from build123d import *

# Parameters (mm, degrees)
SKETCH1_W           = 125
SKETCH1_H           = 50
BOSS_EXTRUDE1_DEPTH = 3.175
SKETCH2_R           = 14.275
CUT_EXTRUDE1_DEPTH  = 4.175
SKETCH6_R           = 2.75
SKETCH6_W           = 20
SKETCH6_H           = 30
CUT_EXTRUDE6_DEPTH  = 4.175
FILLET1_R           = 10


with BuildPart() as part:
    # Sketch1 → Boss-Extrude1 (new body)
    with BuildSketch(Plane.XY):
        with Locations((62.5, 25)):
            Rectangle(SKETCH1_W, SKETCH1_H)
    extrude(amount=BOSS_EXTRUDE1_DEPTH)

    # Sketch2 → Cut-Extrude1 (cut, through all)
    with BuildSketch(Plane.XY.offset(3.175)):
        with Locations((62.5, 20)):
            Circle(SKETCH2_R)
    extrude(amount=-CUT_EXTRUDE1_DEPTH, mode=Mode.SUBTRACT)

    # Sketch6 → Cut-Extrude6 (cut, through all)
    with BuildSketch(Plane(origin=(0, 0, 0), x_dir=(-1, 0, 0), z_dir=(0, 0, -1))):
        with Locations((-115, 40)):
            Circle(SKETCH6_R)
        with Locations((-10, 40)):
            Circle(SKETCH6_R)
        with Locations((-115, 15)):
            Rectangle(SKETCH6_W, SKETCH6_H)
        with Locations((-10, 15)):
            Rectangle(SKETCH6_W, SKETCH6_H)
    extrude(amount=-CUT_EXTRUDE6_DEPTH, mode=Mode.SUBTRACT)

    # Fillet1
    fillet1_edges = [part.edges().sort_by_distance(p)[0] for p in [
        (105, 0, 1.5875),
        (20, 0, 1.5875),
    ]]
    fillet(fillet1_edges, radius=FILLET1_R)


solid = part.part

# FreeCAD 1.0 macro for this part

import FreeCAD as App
import Part
import Sketcher
from FreeCAD import Vector


def edges_at(feature, points):
    """Names of the edges that pass closest to the given points."""
    edges = feature.Shape.Edges
    near = lambda p: min(range(len(edges)), key=lambda i: edges[i].distToShape(Part.Vertex(*p))[0])
    return sorted({f"Edge{near(p) + 1}" for p in points})

doc = App.newDocument("Part")
params = doc.addObject("Spreadsheet::Sheet", "Params")
for row, (alias, value) in enumerate([
    ("sketch1_width", "125 mm"),
    ("sketch1_height", "50 mm"),
    ("pad1_length", "3.175 mm"),
    ("sketch2_diameter", "28.55 mm"),
    ("sketch3_diameter", "5.5 mm"),
    ("sketch3_width", "20 mm"),
    ("sketch3_height", "30 mm"),
    ("fillet_radius", "10 mm"),
], start=1):
    params.set(f"A{row}", alias)
    params.set(f"B{row}", "=" + value)
    params.setAlias(f"B{row}", alias)

body = doc.addObject("PartDesign::Body", "Body")

sketch1 = body.newObject("Sketcher::SketchObject", "Sketch")
sketch1.AttachmentSupport = (doc.getObject("XY_Plane"), [""])
sketch1.MapMode = "FlatFace"
sketch1.addGeometry(Part.LineSegment(Vector(0, 50, 0), Vector(0, 0, 0)), False)
sketch1.addGeometry(Part.LineSegment(Vector(0, 0, 0), Vector(125, 0, 0)), False)
sketch1.addGeometry(Part.LineSegment(Vector(125, 0, 0), Vector(125, 50, 0)), False)
sketch1.addGeometry(Part.LineSegment(Vector(125, 50, 0), Vector(0, 50, 0)), False)
sketch1.addConstraint(Sketcher.Constraint("Coincident", 0, 2, 1, 1))
sketch1.addConstraint(Sketcher.Constraint("Coincident", 1, 2, 2, 1))
sketch1.addConstraint(Sketcher.Constraint("Coincident", 2, 2, 3, 1))
sketch1.addConstraint(Sketcher.Constraint("Coincident", 3, 2, 0, 1))
sketch1.addConstraint(Sketcher.Constraint("Vertical", 0))
sketch1.addConstraint(Sketcher.Constraint("Horizontal", 1))
sketch1.addConstraint(Sketcher.Constraint("Vertical", 2))
sketch1.addConstraint(Sketcher.Constraint("Horizontal", 3))
sketch1.addConstraint(Sketcher.Constraint("Coincident", 0, 2, -1, 1))
sketch1.addConstraint(Sketcher.Constraint("DistanceX", 1, 1, 1, 2, 125.0))
sketch1.addConstraint(Sketcher.Constraint("DistanceY", 0, 2, 0, 1, 50.0))
sketch1.setExpression("Constraints[9]", "Params.sketch1_width")
sketch1.setExpression("Constraints[10]", "Params.sketch1_height")
pad1 = body.newObject("PartDesign::Pad", "Pad")
pad1.Profile = sketch1
pad1.setExpression("Length", "Params.pad1_length")

sketch2 = body.newObject("Sketcher::SketchObject", "Sketch001")
sketch2.AttachmentSupport = (doc.getObject("XY_Plane"), [""])
sketch2.MapMode = "FlatFace"
sketch2.AttachmentOffset = App.Placement(Vector(0, 0, 3.175), App.Rotation())
sketch2.addGeometry(Part.Circle(Vector(62, 20, 0), Vector(0, 0, 1), 14), False)
sketch2.addConstraint(Sketcher.Constraint("Diameter", 0, 28.55))
sketch2.addConstraint(Sketcher.Constraint("DistanceY", -1, 1, 0, 3, 20.0))
sketch2.addConstraint(Sketcher.Constraint("DistanceX", -1, 1, 0, 3, 62.5))
sketch2.setExpression("Constraints[0]", "Params.sketch2_diameter")
pocket1 = body.newObject("PartDesign::Pocket", "Pocket")
pocket1.Profile = sketch2
pocket1.Type = "ThroughAll"

sketch3 = body.newObject("Sketcher::SketchObject", "Sketch002")
sketch3.AttachmentSupport = (doc.getObject("XY_Plane"), [""])
sketch3.MapMode = "FlatFace"
sketch3.addGeometry(Part.Circle(Vector(115, 40, 0), Vector(0, 0, 1), 2.8), False)
sketch3.addGeometry(Part.Circle(Vector(10, 40, 0), Vector(0, 0, 1), 2.8), False)
sketch3.addGeometry(Part.LineSegment(Vector(125, 30, 0), Vector(125, 0, 0)), False)
sketch3.addGeometry(Part.LineSegment(Vector(125, 0, 0), Vector(105, 0, 0)), False)
sketch3.addGeometry(Part.LineSegment(Vector(105, 0, 0), Vector(105, 30, 0)), False)
sketch3.addGeometry(Part.LineSegment(Vector(105, 30, 0), Vector(125, 30, 0)), False)
sketch3.addGeometry(Part.LineSegment(Vector(20, 30, 0), Vector(20, 0, 0)), False)
sketch3.addGeometry(Part.LineSegment(Vector(20, 0, 0), Vector(0, 0, 0)), False)
sketch3.addGeometry(Part.LineSegment(Vector(0, 0, 0), Vector(0, 30, 0)), False)
sketch3.addGeometry(Part.LineSegment(Vector(0, 30, 0), Vector(20, 30, 0)), False)
sketch3.addConstraint(Sketcher.Constraint("Coincident", 2, 2, 3, 1))
sketch3.addConstraint(Sketcher.Constraint("Coincident", 3, 2, 4, 1))
sketch3.addConstraint(Sketcher.Constraint("Coincident", 4, 2, 5, 1))
sketch3.addConstraint(Sketcher.Constraint("Coincident", 5, 2, 2, 1))
sketch3.addConstraint(Sketcher.Constraint("Coincident", 6, 2, 7, 1))
sketch3.addConstraint(Sketcher.Constraint("Coincident", 7, 2, 8, 1))
sketch3.addConstraint(Sketcher.Constraint("Coincident", 8, 2, 9, 1))
sketch3.addConstraint(Sketcher.Constraint("Coincident", 9, 2, 6, 1))
sketch3.addConstraint(Sketcher.Constraint("Vertical", 2))
sketch3.addConstraint(Sketcher.Constraint("Horizontal", 3))
sketch3.addConstraint(Sketcher.Constraint("Vertical", 4))
sketch3.addConstraint(Sketcher.Constraint("Horizontal", 5))
sketch3.addConstraint(Sketcher.Constraint("Vertical", 6))
sketch3.addConstraint(Sketcher.Constraint("Horizontal", 7))
sketch3.addConstraint(Sketcher.Constraint("Vertical", 8))
sketch3.addConstraint(Sketcher.Constraint("Horizontal", 9))
sketch3.addConstraint(Sketcher.Constraint("Coincident", 7, 2, -1, 1))
sketch3.addConstraint(Sketcher.Constraint("Equal", 0, 1))
sketch3.addConstraint(Sketcher.Constraint("PointOnObject", 2, 2, -1))
sketch3.addConstraint(Sketcher.Constraint("Horizontal", 0, 3, 1, 3))
sketch3.addConstraint(Sketcher.Constraint("Horizontal", 5, 2, 8, 2))
sketch3.addConstraint(Sketcher.Constraint("Equal", 5, 7))
sketch3.addConstraint(Sketcher.Constraint("Diameter", 0, 5.5))
sketch3.addConstraint(Sketcher.Constraint("DistanceX", 3, 2, 3, 1, 20.0))
sketch3.addConstraint(Sketcher.Constraint("DistanceY", 2, 2, 2, 1, 30.0))
sketch3.addConstraint(Sketcher.Constraint("DistanceX", -1, 1, 0, 3, 115.0))
sketch3.addConstraint(Sketcher.Constraint("DistanceY", -1, 1, 0, 3, 40.0))
sketch3.addConstraint(Sketcher.Constraint("DistanceX", -1, 1, 1, 3, 10.0))
sketch3.addConstraint(Sketcher.Constraint("DistanceX", -1, 1, 2, 2, 125.0))
sketch3.setExpression("Constraints[22]", "Params.sketch3_diameter")
sketch3.setExpression("Constraints[23]", "Params.sketch3_width")
sketch3.setExpression("Constraints[24]", "Params.sketch3_height")
pocket2 = body.newObject("PartDesign::Pocket", "Pocket001")
pocket2.Profile = sketch3
pocket2.Type = "ThroughAll"
pocket2.Reversed = True
doc.recompute()

fillet = body.newObject("PartDesign::Fillet", "Fillet")
fillet.Base = (pocket2, edges_at(pocket2, [(105, 0, 1.587), (20, 0, 1.587)]))
fillet.setExpression("Radius", "Params.fillet_radius")

doc.recompute()
